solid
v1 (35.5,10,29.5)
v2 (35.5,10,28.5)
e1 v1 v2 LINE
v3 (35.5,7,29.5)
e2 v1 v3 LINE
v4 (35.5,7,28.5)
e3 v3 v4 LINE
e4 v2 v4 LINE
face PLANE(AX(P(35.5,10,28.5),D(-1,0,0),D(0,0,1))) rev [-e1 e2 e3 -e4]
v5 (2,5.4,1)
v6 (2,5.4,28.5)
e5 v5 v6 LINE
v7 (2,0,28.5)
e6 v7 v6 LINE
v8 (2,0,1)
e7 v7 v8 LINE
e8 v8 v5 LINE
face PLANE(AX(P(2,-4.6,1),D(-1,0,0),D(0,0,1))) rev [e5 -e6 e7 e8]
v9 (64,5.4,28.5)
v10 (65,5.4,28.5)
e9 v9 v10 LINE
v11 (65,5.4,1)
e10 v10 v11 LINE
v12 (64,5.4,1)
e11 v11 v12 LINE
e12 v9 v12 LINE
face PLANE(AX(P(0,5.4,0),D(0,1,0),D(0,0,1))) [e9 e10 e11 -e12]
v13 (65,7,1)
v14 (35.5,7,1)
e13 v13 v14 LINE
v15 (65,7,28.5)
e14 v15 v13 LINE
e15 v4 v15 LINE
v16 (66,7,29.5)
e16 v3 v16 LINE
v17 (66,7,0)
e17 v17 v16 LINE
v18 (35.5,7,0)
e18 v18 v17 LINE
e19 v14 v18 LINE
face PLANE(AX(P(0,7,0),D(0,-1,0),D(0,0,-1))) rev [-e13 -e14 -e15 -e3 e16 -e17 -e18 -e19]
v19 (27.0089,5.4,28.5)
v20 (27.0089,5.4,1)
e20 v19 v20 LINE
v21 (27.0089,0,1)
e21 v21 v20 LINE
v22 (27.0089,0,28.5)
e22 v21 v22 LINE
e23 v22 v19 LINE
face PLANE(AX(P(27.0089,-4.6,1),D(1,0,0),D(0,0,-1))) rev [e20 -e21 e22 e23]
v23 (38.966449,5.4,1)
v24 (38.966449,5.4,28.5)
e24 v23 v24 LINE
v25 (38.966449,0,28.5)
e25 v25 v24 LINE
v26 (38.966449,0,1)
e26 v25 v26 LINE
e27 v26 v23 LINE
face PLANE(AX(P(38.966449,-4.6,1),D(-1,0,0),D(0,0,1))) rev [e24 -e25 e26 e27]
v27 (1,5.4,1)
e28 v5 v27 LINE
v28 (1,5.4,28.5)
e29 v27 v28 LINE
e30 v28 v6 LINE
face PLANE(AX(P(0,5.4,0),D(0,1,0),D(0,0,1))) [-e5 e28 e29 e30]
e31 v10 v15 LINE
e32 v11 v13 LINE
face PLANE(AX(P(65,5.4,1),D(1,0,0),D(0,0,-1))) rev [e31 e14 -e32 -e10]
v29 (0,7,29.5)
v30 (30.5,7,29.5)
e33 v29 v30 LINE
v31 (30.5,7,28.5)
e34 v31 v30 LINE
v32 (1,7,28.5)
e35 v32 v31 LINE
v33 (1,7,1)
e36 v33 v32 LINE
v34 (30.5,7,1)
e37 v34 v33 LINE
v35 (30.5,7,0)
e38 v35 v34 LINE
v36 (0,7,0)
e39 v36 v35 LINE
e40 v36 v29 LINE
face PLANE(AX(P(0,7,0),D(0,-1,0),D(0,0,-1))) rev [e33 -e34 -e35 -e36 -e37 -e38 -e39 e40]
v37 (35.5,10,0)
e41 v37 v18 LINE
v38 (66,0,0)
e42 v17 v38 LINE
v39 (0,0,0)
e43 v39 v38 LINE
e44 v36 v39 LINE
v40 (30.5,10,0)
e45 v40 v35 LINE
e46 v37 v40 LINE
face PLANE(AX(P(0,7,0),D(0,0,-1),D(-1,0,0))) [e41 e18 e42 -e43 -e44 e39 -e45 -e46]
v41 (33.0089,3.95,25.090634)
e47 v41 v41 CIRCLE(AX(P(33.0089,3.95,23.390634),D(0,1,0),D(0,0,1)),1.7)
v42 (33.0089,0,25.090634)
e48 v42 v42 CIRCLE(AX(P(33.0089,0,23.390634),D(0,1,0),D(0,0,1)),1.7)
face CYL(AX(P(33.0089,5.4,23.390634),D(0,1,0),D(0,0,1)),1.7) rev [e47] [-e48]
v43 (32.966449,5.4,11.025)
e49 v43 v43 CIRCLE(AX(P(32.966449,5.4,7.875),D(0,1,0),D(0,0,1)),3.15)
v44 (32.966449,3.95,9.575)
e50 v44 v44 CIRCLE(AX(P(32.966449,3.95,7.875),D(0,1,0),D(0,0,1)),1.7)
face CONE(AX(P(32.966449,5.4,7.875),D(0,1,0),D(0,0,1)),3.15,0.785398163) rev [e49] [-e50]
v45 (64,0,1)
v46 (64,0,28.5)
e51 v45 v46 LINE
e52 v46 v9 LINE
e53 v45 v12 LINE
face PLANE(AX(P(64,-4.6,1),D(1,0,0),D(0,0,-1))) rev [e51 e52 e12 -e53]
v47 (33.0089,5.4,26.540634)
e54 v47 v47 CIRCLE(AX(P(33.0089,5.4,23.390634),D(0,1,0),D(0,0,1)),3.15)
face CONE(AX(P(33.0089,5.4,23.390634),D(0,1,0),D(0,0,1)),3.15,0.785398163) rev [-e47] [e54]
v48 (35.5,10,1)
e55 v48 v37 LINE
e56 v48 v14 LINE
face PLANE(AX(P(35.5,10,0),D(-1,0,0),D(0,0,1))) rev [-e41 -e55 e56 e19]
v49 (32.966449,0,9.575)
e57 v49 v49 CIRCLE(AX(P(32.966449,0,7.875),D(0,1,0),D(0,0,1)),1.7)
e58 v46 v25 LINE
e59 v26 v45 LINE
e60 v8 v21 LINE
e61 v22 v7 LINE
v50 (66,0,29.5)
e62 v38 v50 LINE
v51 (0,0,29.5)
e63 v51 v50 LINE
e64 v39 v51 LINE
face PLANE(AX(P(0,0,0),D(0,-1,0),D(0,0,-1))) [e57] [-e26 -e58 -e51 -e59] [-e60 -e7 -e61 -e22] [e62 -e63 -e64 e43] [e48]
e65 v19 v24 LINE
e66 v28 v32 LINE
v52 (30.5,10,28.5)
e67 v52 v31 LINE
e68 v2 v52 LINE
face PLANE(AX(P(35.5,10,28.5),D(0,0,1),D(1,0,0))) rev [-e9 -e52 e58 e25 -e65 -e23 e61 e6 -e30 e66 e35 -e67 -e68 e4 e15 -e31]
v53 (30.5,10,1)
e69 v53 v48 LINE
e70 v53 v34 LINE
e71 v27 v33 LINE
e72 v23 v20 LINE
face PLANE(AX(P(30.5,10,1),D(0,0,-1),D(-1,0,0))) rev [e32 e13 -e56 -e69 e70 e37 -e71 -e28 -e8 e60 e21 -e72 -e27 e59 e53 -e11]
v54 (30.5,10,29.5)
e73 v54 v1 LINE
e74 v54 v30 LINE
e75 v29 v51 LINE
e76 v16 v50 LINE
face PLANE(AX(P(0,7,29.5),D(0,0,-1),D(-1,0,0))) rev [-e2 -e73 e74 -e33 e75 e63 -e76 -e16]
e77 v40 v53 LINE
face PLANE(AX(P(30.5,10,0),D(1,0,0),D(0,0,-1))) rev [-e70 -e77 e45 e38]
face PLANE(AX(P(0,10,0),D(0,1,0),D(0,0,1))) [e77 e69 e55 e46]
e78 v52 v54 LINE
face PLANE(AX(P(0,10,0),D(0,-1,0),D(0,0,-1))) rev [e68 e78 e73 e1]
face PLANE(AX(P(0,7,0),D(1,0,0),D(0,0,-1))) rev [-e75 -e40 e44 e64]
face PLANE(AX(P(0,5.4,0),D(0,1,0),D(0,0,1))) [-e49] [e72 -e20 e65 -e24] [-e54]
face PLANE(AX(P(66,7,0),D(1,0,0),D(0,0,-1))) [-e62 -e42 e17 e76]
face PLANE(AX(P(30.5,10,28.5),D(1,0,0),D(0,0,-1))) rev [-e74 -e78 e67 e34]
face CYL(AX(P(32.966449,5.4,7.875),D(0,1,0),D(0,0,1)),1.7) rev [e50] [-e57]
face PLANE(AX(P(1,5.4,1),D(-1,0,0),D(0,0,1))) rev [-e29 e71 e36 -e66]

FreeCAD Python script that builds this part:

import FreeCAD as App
import Part
import Sketcher


def add_polygon(sketch, points):
    """Adds a closed chain of lines whose ends are joined by coincident constraints."""
    first, n = sketch.GeometryCount, len(points)
    for a, b in zip(points, points[1:] + points[:1]):
        sketch.addGeometry(Part.LineSegment(App.Vector(*a, 0), App.Vector(*b, 0)), False)
    for i in range(n):
        sketch.addConstraint(Sketcher.Constraint("Coincident", first + i, 2, first + (i + 1) % n, 1))

doc = App.newDocument("Part")
body = doc.addObject("PartDesign::Body", "Body")

sketch1 = doc.addObject("Sketcher::SketchObject", "Sketch")
body.addObject(sketch1)
sketch1.AttachmentSupport = (doc.XZ_Plane, [""])
sketch1.MapMode = "FlatFace"
add_polygon(sketch1, [(0, 0), (0, 30), (66, 30), (66, 0)])
sketch1.addConstraint([
    Sketcher.Constraint("Vertical", 0),
    Sketcher.Constraint("Horizontal", 1),
    Sketcher.Constraint("Vertical", 2),
    Sketcher.Constraint("Horizontal", 3),
    Sketcher.Constraint("Coincident", 3, 2, -1, 1),
    Sketcher.Constraint("DistanceX", 1, 1, 1, 2, 66.0),
    Sketcher.Constraint("DistanceY", 0, 1, 0, 2, 29.5),
])
pad1 = doc.addObject("PartDesign::Pad", "Pad")
body.addObject(pad1)
pad1.Profile = sketch1
pad1.Length = 7
pad1.Reversed = True

sketch2 = doc.addObject("Sketcher::SketchObject", "Sketch001")
body.addObject(sketch2)
sketch2.AttachmentSupport = (doc.XZ_Plane, [""])
sketch2.MapMode = "FlatFace"
sketch2.AttachmentOffset = App.Placement(App.Vector(0, 0, -7), App.Rotation())
add_polygon(sketch2, [(30.5, 0), (30.5, 1), (35.5, 1), (35.5, 0)])
add_polygon(sketch2, [(30.5, 28.5), (30.5, 29.5), (35.5, 29.5), (35.5, 28.5)])
sketch2.addConstraint([
    Sketcher.Constraint("Vertical", 0),
    Sketcher.Constraint("Horizontal", 1),
    Sketcher.Constraint("Vertical", 2),
    Sketcher.Constraint("Horizontal", 3),
    Sketcher.Constraint("Vertical", 4),
    Sketcher.Constraint("Horizontal", 5),
    Sketcher.Constraint("Vertical", 6),
    Sketcher.Constraint("Horizontal", 7),
    Sketcher.Constraint("PointOnObject", 2, 2, -1),
    Sketcher.Constraint("Vertical", 3, 2, 4, 2),
    Sketcher.Constraint("Vertical", 2, 2, 5, 2),
    Sketcher.Constraint("Equal", 2, 4),
    Sketcher.Constraint("DistanceX", 1, 1, 1, 2, 5.0),
    Sketcher.Constraint("DistanceY", 0, 1, 0, 2, 1.0),
    Sketcher.Constraint("DistanceX", -1, 1, 0, 2, 30.5),
    Sketcher.Constraint("DistanceY", -1, 1, 4, 2, 29.5),
])
pad2 = doc.addObject("PartDesign::Pad", "Pad001")
body.addObject(pad2)
pad2.Profile = sketch2
pad2.Length = 3
pad2.Reversed = True

sketch3 = doc.addObject("Sketcher::SketchObject", "Sketch002")
body.addObject(sketch3)
sketch3.AttachmentSupport = (doc.XZ_Plane, [""])
sketch3.MapMode = "FlatFace"
sketch3.AttachmentOffset = App.Placement(App.Vector(0, 0, -7), App.Rotation())
add_polygon(sketch3, [(1, 1), (1, 28), (65, 28), (65, 1)])
sketch3.addConstraint([
    Sketcher.Constraint("Vertical", 0),
    Sketcher.Constraint("Horizontal", 1),
    Sketcher.Constraint("Vertical", 2),
    Sketcher.Constraint("Horizontal", 3),
    Sketcher.Constraint("DistanceX", 1, 1, 1, 2, 64.0),
    Sketcher.Constraint("DistanceY", 0, 1, 0, 2, 27.5),
    Sketcher.Constraint("DistanceX", -1, 1, 0, 2, 1.0),
    Sketcher.Constraint("DistanceY", -1, 1, 2, 2, 1.0),
])
pocket1 = doc.addObject("PartDesign::Pocket", "Pocket")
body.addObject(pocket1)
pocket1.Profile = sketch3
pocket1.Length = 1.6
pocket1.Reversed = True

sketch4 = doc.addObject("Sketcher::SketchObject", "Sketch003")
body.addObject(sketch4)
sketch4.AttachmentSupport = (doc.XZ_Plane, [""])
sketch4.MapMode = "FlatFace"
sketch4.AttachmentOffset = App.Placement(App.Vector(0, 0, -5.4), App.Rotation())
add_polygon(sketch4, [(2, 1), (2, 28), (27, 28), (27, 1)])
add_polygon(sketch4, [(39, 1), (39, 28), (64, 28), (64, 1)])
sketch4.addConstraint([
    Sketcher.Constraint("Vertical", 0),
    Sketcher.Constraint("Horizontal", 1),
    Sketcher.Constraint("Vertical", 2),
    Sketcher.Constraint("Horizontal", 3),
    Sketcher.Constraint("Vertical", 4),
    Sketcher.Constraint("Horizontal", 5),
    Sketcher.Constraint("Vertical", 6),
    Sketcher.Constraint("Horizontal", 7),
    Sketcher.Constraint("Horizontal", 1, 2, 4, 2),
    Sketcher.Constraint("Horizontal", 3, 2, 6, 2),
    Sketcher.Constraint("DistanceY", 0, 1, 0, 2, 27.5),
    Sketcher.Constraint("DistanceX", -1, 1, 0, 2, 2.0),
    Sketcher.Constraint("DistanceY", -1, 1, 2, 2, 1.0),
    Sketcher.Constraint("DistanceX", -1, 1, 5, 2, 64.0),
    Sketcher.Constraint("DistanceX", 1, 1, 1, 2, 25.0089),
    Sketcher.Constraint("DistanceX", 5, 1, 5, 2, 25.033551),
])
pocket2 = doc.addObject("PartDesign::Pocket", "Pocket001")
body.addObject(pocket2)
pocket2.Profile = sketch4
pocket2.Length = 10
pocket2.Reversed = True

sketch5 = doc.addObject("Sketcher::SketchObject", "Sketch004")
body.addObject(sketch5)
sketch5.AttachmentSupport = (doc.XZ_Plane, [""])
sketch5.MapMode = "FlatFace"
sketch5.AttachmentOffset = App.Placement(App.Vector(0, 0, -5.4), App.Rotation())
sketch5.addGeometry([
    Part.Circle(App.Vector(33, 7.9, 0), App.Vector(0, 0, 1), 1.7),
    Part.Circle(App.Vector(33, 23.4, 0), App.Vector(0, 0, 1), 1.7),
], False)
sketch5.addConstraint([
    Sketcher.Constraint("Equal", 0, 1),
    Sketcher.Constraint("Diameter", 0, 3.4),
    Sketcher.Constraint("DistanceY", -1, 1, 0, 3, 7.875),
    Sketcher.Constraint("DistanceX", -1, 1, 1, 3, 33.0089),
    Sketcher.Constraint("DistanceX", -1, 1, 0, 3, 32.966449),
    Sketcher.Constraint("DistanceY", -1, 1, 1, 3, 23.390634),
])
doc.recompute()
hole = doc.addObject("PartDesign::Hole", "Hole")
body.addObject(hole)
hole.Profile = sketch5
hole.ThreadType = "None"
hole.Diameter = 3.4
hole.DepthType = "ThroughAll"
hole.HoleCutType = "Countersink"
hole.HoleCutDiameter = 6.3
hole.HoleCutCountersinkAngle = 90
hole.Reversed = True

doc.recompute()
